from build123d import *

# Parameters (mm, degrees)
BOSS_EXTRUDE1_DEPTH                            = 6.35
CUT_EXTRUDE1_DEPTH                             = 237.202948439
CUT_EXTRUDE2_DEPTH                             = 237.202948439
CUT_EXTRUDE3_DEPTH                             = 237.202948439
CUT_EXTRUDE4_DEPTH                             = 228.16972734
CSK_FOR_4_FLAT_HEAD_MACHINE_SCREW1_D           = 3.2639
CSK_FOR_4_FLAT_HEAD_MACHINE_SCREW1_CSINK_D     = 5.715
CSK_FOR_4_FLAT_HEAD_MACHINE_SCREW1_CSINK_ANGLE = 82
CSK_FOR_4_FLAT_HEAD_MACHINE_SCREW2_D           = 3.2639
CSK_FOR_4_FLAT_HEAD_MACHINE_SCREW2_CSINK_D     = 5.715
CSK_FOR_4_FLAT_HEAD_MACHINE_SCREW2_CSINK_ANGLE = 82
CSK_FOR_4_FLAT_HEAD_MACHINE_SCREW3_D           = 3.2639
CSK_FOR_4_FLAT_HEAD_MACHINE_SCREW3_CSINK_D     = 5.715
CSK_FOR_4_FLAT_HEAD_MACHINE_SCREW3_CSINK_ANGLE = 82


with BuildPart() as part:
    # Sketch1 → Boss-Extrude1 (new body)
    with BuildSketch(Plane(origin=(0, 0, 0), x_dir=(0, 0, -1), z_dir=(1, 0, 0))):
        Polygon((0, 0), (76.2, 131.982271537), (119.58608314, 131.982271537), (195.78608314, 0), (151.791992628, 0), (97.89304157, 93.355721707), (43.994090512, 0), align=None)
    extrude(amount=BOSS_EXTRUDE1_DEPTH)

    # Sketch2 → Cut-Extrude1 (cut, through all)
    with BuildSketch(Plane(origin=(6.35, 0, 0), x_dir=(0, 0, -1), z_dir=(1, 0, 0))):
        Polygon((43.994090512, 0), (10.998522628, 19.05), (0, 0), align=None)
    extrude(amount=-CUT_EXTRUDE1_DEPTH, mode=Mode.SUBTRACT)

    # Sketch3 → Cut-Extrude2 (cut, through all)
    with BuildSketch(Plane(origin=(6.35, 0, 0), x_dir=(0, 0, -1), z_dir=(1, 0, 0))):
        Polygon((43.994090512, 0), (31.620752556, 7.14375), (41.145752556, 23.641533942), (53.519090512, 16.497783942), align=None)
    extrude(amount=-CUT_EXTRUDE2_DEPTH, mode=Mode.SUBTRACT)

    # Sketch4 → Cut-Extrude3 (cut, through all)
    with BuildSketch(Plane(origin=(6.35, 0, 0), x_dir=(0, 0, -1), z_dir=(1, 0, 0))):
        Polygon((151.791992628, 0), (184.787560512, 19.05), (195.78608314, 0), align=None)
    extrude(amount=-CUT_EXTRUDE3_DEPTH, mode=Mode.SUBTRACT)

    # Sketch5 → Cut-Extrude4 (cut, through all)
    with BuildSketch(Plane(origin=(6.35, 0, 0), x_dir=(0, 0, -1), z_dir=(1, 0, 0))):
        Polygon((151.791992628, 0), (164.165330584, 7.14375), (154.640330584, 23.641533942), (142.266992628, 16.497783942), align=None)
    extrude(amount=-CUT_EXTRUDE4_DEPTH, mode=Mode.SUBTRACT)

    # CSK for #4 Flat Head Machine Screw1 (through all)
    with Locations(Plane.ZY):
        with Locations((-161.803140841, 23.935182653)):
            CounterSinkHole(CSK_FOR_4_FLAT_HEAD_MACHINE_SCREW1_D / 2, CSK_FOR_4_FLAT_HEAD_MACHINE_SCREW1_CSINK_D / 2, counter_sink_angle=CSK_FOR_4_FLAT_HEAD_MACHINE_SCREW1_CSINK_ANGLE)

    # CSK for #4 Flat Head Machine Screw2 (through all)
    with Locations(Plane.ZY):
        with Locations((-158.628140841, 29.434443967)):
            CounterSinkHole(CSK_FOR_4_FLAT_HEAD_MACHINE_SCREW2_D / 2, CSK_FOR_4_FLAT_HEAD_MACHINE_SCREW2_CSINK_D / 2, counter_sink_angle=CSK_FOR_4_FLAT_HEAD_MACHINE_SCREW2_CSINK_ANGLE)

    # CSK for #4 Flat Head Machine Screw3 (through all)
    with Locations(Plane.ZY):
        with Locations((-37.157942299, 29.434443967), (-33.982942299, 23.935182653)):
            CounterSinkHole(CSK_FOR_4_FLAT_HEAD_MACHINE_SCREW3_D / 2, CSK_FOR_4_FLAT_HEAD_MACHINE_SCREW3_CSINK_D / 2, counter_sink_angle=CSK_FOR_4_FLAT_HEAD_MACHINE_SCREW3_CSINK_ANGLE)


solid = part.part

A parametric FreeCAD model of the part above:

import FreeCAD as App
import Part
import Sketcher
Q = App.Units.Quantity


def add_polygon(sketch, points):
    """Adds a closed chain of lines whose ends are joined by coincident constraints."""
    first, n = sketch.GeometryCount, len(points)
    for a, b in zip(points, points[1:] + points[:1]):
        sketch.addGeometry(Part.LineSegment(App.Vector(*a, 0), App.Vector(*b, 0)), False)
    for i in range(n):
        sketch.addConstraint(Sketcher.Constraint("Coincident", first + i, 2, first + (i + 1) % n, 1))

doc = App.newDocument("Part")
body = doc.addObject("PartDesign::Body", "Body")

# Sketch on YZ plane
sketch1 = body.newObject("Sketcher::SketchObject", "Sketch")
sketch1.AttachmentSupport = (doc.getObject("YZ_Plane"), [""])
sketch1.MapMode = "FlatFace"
add_polygon(sketch1, [(132, -76), (0, 0), (0, -44), (93, -98), (0, -152), (0, -196), (132, -120)])  # lines 0-6
sketch1.addConstraint(Sketcher.Constraint("Vertical", 1))
sketch1.addConstraint(Sketcher.Constraint("Vertical", 4))
sketch1.addConstraint(Sketcher.Constraint("Vertical", 6))
sketch1.addConstraint(Sketcher.Constraint("Coincident", 0, 2, -1, 1))
sketch1.addConstraint(Sketcher.Constraint("PointOnObject", 3, 2, -2))
sketch1.addConstraint(Sketcher.Constraint("Parallel", 0, 2))
sketch1.addConstraint(Sketcher.Constraint("Parallel", 3, 5))
sketch1.addConstraint(Sketcher.Constraint("Equal", 1, 4))
sketch1.addConstraint(Sketcher.Constraint("Equal", 2, 3))
sketch1.addConstraint(Sketcher.Constraint("Distance", 0, Q("6 in")))
sketch1.addConstraint(Sketcher.Constraint("DistanceY", 6, 2, -1, 1, Q("3 in")))
sketch1.addConstraint(Sketcher.Constraint("DistanceY", 1, 2, 1, 1, 43.994091))
sketch1.addConstraint(Sketcher.Constraint("DistanceY", 6, 1, 6, 2, 43.386083))
pad1 = body.newObject("PartDesign::Pad", "Pad")
pad1.Profile = sketch1
pad1.Length = Q("0.25 in")

# Sketch on YZ plane
sketch2 = body.newObject("Sketcher::SketchObject", "Sketch001")
sketch2.AttachmentSupport = (doc.getObject("YZ_Plane"), [""])
sketch2.MapMode = "FlatFace"
sketch2.AttachmentOffset = App.Placement(App.Vector(0, 0, 0.25 * 25.4), App.Rotation())
add_polygon(sketch2, [(0, -44), (19, -11), (0, 0)])  # lines 0-2
sketch2.addConstraint(Sketcher.Constraint("Vertical", 2))
sketch2.addConstraint(Sketcher.Constraint("Coincident", 1, 2, -1, 1))
sketch2.addConstraint(Sketcher.Constraint("Perpendicular", 0, 1))
sketch2.addConstraint(Sketcher.Constraint("Angle", 0, Q("60 deg")))
sketch2.addConstraint(Sketcher.Constraint("Distance", 0, Q("1.5 in")))
pocket1 = body.newObject("PartDesign::Pocket", "Pocket")
pocket1.Profile = sketch2
pocket1.Type = "ThroughAll"

# Sketch on YZ plane
sketch3 = body.newObject("Sketcher::SketchObject", "Sketch002")
sketch3.AttachmentSupport = (doc.getObject("YZ_Plane"), [""])
sketch3.MapMode = "FlatFace"
sketch3.AttachmentOffset = App.Placement(App.Vector(0, 0, 0.25 * 25.4), App.Rotation())
add_polygon(sketch3, [(7, -32), (0, -44), (16, -54), (24, -41)])  # lines 0-3
sketch3.addConstraint(Sketcher.Constraint("PointOnObject", 0, 2, -2))
sketch3.addConstraint(Sketcher.Constraint("Perpendicular", 0, 1))
sketch3.addConstraint(Sketcher.Constraint("Perpendicular", 1, 2))
sketch3.addConstraint(Sketcher.Constraint("Perpendicular", 2, 3))
sketch3.addConstraint(Sketcher.Constraint("Angle", 0, Q("-120 deg")))
sketch3.addConstraint(Sketcher.Constraint("Distance", 1, Q("0.75 in")))
sketch3.addConstraint(Sketcher.Constraint("Distance", 0, Q("0.5625 in")))
sketch3.addConstraint(Sketcher.Constraint("DistanceY", 0, 2, -1, 1, 43.994091))
pocket2 = body.newObject("PartDesign::Pocket", "Pocket001")
pocket2.Profile = sketch3
pocket2.Type = "ThroughAll"

# Sketch on YZ plane
sketch4 = body.newObject("Sketcher::SketchObject", "Sketch003")
sketch4.AttachmentSupport = (doc.getObject("YZ_Plane"), [""])
sketch4.MapMode = "FlatFace"
sketch4.AttachmentOffset = App.Placement(App.Vector(0, 0, 0.25 * 25.4), App.Rotation())
add_polygon(sketch4, [(19, -185), (0, -152), (0, -196)])  # lines 0-2
sketch4.addConstraint(Sketcher.Constraint("Vertical", 1))
sketch4.addConstraint(Sketcher.Constraint("PointOnObject", 0, 2, -2))
sketch4.addConstraint(Sketcher.Constraint("Perpendicular", 0, 2))
sketch4.addConstraint(Sketcher.Constraint("Angle", 0, Q("120 deg")))
sketch4.addConstraint(Sketcher.Constraint("Distance", 0, Q("1.5 in")))
sketch4.addConstraint(Sketcher.Constraint("DistanceY", 2, 2, -1, 1, 184.787561))
pocket3 = body.newObject("PartDesign::Pocket", "Pocket002")
pocket3.Profile = sketch4
pocket3.Type = "ThroughAll"

# Sketch on YZ plane
sketch5 = body.newObject("Sketcher::SketchObject", "Sketch004")
sketch5.AttachmentSupport = (doc.getObject("YZ_Plane"), [""])
sketch5.MapMode = "FlatFace"
sketch5.AttachmentOffset = App.Placement(App.Vector(0, 0, 0.25 * 25.4), App.Rotation())
add_polygon(sketch5, [(0, -152), (7, -164), (24, -155), (16, -142)])  # lines 0-3
sketch5.addConstraint(Sketcher.Constraint("PointOnObject", 3, 2, -2))
sketch5.addConstraint(Sketcher.Constraint("Perpendicular", 0, 1))
sketch5.addConstraint(Sketcher.Constraint("Perpendicular", 1, 2))
sketch5.addConstraint(Sketcher.Constraint("Perpendicular", 2, 3))
sketch5.addConstraint(Sketcher.Constraint("Angle", 0, Q("-60 deg")))
sketch5.addConstraint(Sketcher.Constraint("Distance", 1, Q("0.75 in")))
sketch5.addConstraint(Sketcher.Constraint("Distance", 0, Q("0.5625 in")))
sketch5.addConstraint(Sketcher.Constraint("DistanceY", 0, 2, -1, 1, 164.165331))
pocket4 = body.newObject("PartDesign::Pocket", "Pocket003")
pocket4.Profile = sketch5
pocket4.Type = "ThroughAll"

# Sketch on YZ plane
sketch6 = body.newObject("Sketcher::SketchObject", "Sketch005")
sketch6.AttachmentSupport = (doc.getObject("YZ_Plane"), [""])
sketch6.MapMode = "FlatFace"
sketch6.addGeometry(Part.Circle(App.Vector(23.9, -161.8, 0), App.Vector(0, 0, 1), 1.6), False)
sketch6.addConstraint(Sketcher.Constraint("Diameter", 0, Q("0.1285 in")))
sketch6.addConstraint(Sketcher.Constraint("DistanceY", 0, 3, -1, 1, 161.803141))
sketch6.addConstraint(Sketcher.Constraint("DistanceX", -1, 1, 0, 3, 23.935183))
doc.recompute()
hole = body.newObject("PartDesign::Hole", "Hole")
hole.Profile = sketch6
hole.ThreadType = "None"
hole.Diameter = Q("0.1285 in")
hole.DepthType = "ThroughAll"
hole.HoleCutType = "Countersink"
hole.HoleCutDiameter = Q("0.225 in")
hole.HoleCutCountersinkAngle = 82
hole.Reversed = True

# Sketch on YZ plane
sketch7 = body.newObject("Sketcher::SketchObject", "Sketch006")
sketch7.AttachmentSupport = (doc.getObject("YZ_Plane"), [""])
sketch7.MapMode = "FlatFace"
sketch7.addGeometry(Part.Circle(App.Vector(29.4, -158.6, 0), App.Vector(0, 0, 1), 1.6), False)
sketch7.addConstraint(Sketcher.Constraint("Diameter", 0, Q("0.1285 in")))
sketch7.addConstraint(Sketcher.Constraint("DistanceY", 0, 3, -1, 1, 158.628141))
sketch7.addConstraint(Sketcher.Constraint("DistanceX", -1, 1, 0, 3, 29.434444))
doc.recompute()
hole2 = body.newObject("PartDesign::Hole", "Hole001")
hole2.Profile = sketch7
hole2.ThreadType = "None"
hole2.Diameter = Q("0.1285 in")
hole2.DepthType = "ThroughAll"
hole2.HoleCutType = "Countersink"
hole2.HoleCutDiameter = Q("0.225 in")
hole2.HoleCutCountersinkAngle = 82
hole2.Reversed = True

# Sketch on YZ plane
sketch8 = body.newObject("Sketcher::SketchObject", "Sketch007")
sketch8.AttachmentSupport = (doc.getObject("YZ_Plane"), [""])
sketch8.MapMode = "FlatFace"
sketch8.addGeometry(Part.Circle(App.Vector(29.4, -37.2, 0), App.Vector(0, 0, 1), 1.6), False)
sketch8.addGeometry(Part.Circle(App.Vector(23.9, -34, 0), App.Vector(0, 0, 1), 1.6), False)
sketch8.addConstraint(Sketcher.Constraint("Equal", 0, 1))
sketch8.addConstraint(Sketcher.Constraint("Diameter", 0, Q("0.1285 in")))
sketch8.addConstraint(Sketcher.Constraint("DistanceY", 0, 3, 1, 3, Q("0.125 in")))
sketch8.addConstraint(Sketcher.Constraint("DistanceX", 1, 3, 0, 3, 5.499261))
sketch8.addConstraint(Sketcher.Constraint("DistanceX", -1, 1, 0, 3, 29.434444))
sketch8.addConstraint(Sketcher.Constraint("DistanceY", 0, 3, -1, 1, 37.157942))
doc.recompute()
hole3 = body.newObject("PartDesign::Hole", "Hole002")
hole3.Profile = sketch8
hole3.ThreadType = "None"
hole3.Diameter = Q("0.1285 in")
hole3.DepthType = "ThroughAll"
hole3.HoleCutType = "Countersink"
hole3.HoleCutDiameter = Q("0.225 in")
hole3.HoleCutCountersinkAngle = 82
hole3.Reversed = True

doc.recompute()
